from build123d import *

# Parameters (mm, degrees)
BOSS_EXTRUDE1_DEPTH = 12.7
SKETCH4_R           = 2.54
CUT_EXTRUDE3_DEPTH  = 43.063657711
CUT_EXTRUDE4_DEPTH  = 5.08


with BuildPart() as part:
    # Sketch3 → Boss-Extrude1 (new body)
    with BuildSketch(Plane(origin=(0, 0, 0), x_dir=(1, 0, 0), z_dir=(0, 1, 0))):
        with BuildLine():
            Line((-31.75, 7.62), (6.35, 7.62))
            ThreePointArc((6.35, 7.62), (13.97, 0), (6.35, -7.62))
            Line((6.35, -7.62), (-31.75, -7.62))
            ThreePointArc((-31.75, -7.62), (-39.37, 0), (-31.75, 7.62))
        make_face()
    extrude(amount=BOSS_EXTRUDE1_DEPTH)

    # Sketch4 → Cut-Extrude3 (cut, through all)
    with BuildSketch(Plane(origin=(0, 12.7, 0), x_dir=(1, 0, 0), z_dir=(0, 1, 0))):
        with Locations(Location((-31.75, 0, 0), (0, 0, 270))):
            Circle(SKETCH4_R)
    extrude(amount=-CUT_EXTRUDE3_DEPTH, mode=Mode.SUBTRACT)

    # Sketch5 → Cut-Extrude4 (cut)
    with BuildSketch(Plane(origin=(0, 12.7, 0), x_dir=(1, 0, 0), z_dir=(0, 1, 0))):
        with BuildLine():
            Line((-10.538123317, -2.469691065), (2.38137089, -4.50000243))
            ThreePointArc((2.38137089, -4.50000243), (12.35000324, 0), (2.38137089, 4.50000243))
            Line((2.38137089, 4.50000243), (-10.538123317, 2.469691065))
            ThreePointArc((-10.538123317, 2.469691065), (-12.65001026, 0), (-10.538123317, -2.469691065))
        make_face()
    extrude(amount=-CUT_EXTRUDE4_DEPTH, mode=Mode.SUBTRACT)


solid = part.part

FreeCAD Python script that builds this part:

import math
import FreeCAD as App
import Part
import Sketcher
from FreeCAD import Vector
Q = App.Units.Quantity

doc = App.newDocument("Part")
params = doc.addObject("Spreadsheet::Sheet", "Params")
for row, (alias, value) in enumerate([
    ("sketch1_radius", "0.3 in"),
    ("sketch1_width", "1.5 in"),
    ("pad1_length", "0.5 in"),
    ("sketch2_diameter", "0.2 in"),
    ("pocket2_length", "0.2 in"),
], start=1):
    params.set(f"A{row}", alias)
    params.set(f"B{row}", "=" + value)
    params.setAlias(f"B{row}", alias)

body = doc.addObject("PartDesign::Body", "Body")

# Sketch on XZ plane
sketch1 = doc.addObject("Sketcher::SketchObject", "Sketch")
body.addObject(sketch1)
sketch1.AttachmentSupport = (doc.XZ_Plane, [""])
sketch1.MapMode = "FlatFace"
sketch1.addGeometry([
    Part.LineSegment(Vector(6.35, -7.62, 0), Vector(-31.75, -7.62, 0)),
    Part.ArcOfCircle(Part.Circle(Vector(-31.75, 0, 0), Vector(0, 0, 1), 7.62), math.radians(90), math.radians(270)),
    Part.LineSegment(Vector(-31.75, 7.62, 0), Vector(6.35, 7.62, 0)),
    Part.ArcOfCircle(Part.Circle(Vector(6.35, 0, 0), Vector(0, 0, 1), 7.62), math.radians(-90), math.radians(90)),
], False)
sketch1.addConstraint([
    Sketcher.Constraint("Tangent", 0, 2, 1, 2),
    Sketcher.Constraint("Tangent", 1, 1, 2, 1),
    Sketcher.Constraint("Tangent", 2, 2, 3, 2),
    Sketcher.Constraint("Tangent", 3, 1, 0, 1),
    Sketcher.Constraint("Horizontal", 0),
    Sketcher.Constraint("Horizontal", 2),
    Sketcher.Constraint("PointOnObject", 1, 3, -1),
    Sketcher.Constraint("Radius", 1, Q("0.3 in")),
    Sketcher.Constraint("DistanceX", 0, 2, 0, 1, Q("1.5 in")),
    Sketcher.Constraint("DistanceX", 1, 3, -1, 1, Q("1.25 in")),
])
sketch1.setExpression("Constraints[7]", "Params.sketch1_radius")
sketch1.setExpression("Constraints[8]", "Params.sketch1_width")
pad1 = doc.addObject("PartDesign::Pad", "Pad")
body.addObject(pad1)
pad1.Profile = sketch1
pad1.setExpression("Length", "Params.pad1_length")
pad1.Reversed = True

# Sketch on XZ plane
sketch2 = doc.addObject("Sketcher::SketchObject", "Sketch001")
body.addObject(sketch2)
sketch2.AttachmentSupport = (doc.XZ_Plane, [""])
sketch2.MapMode = "FlatFace"
sketch2.AttachmentOffset = App.Placement(Vector(0, 0, -0.5 * 25.4), App.Rotation())
sketch2.addGeometry(Part.Circle(Vector(-31.75, 0, 0), Vector(0, 0, 1), 2.54), False)
sketch2.addConstraint([
    Sketcher.Constraint("PointOnObject", 0, 3, -1),
    Sketcher.Constraint("Diameter", 0, Q("0.2 in")),
    Sketcher.Constraint("DistanceX", 0, 3, -1, 1, Q("1.25 in")),
])
sketch2.setExpression("Constraints[1]", "Params.sketch2_diameter")
pocket1 = doc.addObject("PartDesign::Pocket", "Pocket")
body.addObject(pocket1)
pocket1.Profile = sketch2
pocket1.Type = "ThroughAll"
pocket1.Reversed = True

# Sketch on XZ plane
sketch3 = doc.addObject("Sketcher::SketchObject", "Sketch002")
body.addObject(sketch3)
sketch3.AttachmentSupport = (doc.XZ_Plane, [""])
sketch3.MapMode = "FlatFace"
sketch3.AttachmentOffset = App.Placement(Vector(0, 0, -0.5 * 25.4), App.Rotation())
sketch3.addGeometry([
    Part.LineSegment(Vector(-10.538123, 2.469691, 0), Vector(2.381371, 4.500002, 0)),
    Part.ArcOfCircle(Part.Circle(Vector(6.35, 0, 0), Vector(0, 0, 1), 6.000003), math.radians(-131.409622), math.radians(131.409622)),
    Part.LineSegment(Vector(2.381371, -4.500002, 0), Vector(-10.538123, -2.469691, 0)),
    Part.ArcOfCircle(Part.Circle(Vector(-10.150009, 0, 0), Vector(0, 0, 1), 2.500001), math.radians(98.931045), math.radians(261.068955)),
], False)
sketch3.addConstraint([
    Sketcher.Constraint("Coincident", 0, 2, 1, 2),
    Sketcher.Constraint("Coincident", 1, 1, 2, 1),
    Sketcher.Constraint("Tangent", 2, 2, 3, 2),
    Sketcher.Constraint("Tangent", 3, 1, 0, 1),
    Sketcher.Constraint("Symmetric", 0, 2, 1, 1, -1),
    Sketcher.Constraint("PointOnObject", 3, 3, -1),
    Sketcher.Constraint("DistanceX", -1, 1, 1, 3, Q("0.25 in")),
    Sketcher.Constraint("Radius", 3, 2.500001),
    Sketcher.Constraint("Radius", 1, 6.000003),
    Sketcher.Constraint("DistanceX", 3, 3, -1, 1, 10.150009),
    Sketcher.Constraint("DistanceX", -1, 1, 0, 2, 2.381371),
])
pocket2 = doc.addObject("PartDesign::Pocket", "Pocket001")
body.addObject(pocket2)
pocket2.Profile = sketch3
pocket2.setExpression("Length", "Params.pocket2_length")
pocket2.Reversed = True

doc.recompute()
